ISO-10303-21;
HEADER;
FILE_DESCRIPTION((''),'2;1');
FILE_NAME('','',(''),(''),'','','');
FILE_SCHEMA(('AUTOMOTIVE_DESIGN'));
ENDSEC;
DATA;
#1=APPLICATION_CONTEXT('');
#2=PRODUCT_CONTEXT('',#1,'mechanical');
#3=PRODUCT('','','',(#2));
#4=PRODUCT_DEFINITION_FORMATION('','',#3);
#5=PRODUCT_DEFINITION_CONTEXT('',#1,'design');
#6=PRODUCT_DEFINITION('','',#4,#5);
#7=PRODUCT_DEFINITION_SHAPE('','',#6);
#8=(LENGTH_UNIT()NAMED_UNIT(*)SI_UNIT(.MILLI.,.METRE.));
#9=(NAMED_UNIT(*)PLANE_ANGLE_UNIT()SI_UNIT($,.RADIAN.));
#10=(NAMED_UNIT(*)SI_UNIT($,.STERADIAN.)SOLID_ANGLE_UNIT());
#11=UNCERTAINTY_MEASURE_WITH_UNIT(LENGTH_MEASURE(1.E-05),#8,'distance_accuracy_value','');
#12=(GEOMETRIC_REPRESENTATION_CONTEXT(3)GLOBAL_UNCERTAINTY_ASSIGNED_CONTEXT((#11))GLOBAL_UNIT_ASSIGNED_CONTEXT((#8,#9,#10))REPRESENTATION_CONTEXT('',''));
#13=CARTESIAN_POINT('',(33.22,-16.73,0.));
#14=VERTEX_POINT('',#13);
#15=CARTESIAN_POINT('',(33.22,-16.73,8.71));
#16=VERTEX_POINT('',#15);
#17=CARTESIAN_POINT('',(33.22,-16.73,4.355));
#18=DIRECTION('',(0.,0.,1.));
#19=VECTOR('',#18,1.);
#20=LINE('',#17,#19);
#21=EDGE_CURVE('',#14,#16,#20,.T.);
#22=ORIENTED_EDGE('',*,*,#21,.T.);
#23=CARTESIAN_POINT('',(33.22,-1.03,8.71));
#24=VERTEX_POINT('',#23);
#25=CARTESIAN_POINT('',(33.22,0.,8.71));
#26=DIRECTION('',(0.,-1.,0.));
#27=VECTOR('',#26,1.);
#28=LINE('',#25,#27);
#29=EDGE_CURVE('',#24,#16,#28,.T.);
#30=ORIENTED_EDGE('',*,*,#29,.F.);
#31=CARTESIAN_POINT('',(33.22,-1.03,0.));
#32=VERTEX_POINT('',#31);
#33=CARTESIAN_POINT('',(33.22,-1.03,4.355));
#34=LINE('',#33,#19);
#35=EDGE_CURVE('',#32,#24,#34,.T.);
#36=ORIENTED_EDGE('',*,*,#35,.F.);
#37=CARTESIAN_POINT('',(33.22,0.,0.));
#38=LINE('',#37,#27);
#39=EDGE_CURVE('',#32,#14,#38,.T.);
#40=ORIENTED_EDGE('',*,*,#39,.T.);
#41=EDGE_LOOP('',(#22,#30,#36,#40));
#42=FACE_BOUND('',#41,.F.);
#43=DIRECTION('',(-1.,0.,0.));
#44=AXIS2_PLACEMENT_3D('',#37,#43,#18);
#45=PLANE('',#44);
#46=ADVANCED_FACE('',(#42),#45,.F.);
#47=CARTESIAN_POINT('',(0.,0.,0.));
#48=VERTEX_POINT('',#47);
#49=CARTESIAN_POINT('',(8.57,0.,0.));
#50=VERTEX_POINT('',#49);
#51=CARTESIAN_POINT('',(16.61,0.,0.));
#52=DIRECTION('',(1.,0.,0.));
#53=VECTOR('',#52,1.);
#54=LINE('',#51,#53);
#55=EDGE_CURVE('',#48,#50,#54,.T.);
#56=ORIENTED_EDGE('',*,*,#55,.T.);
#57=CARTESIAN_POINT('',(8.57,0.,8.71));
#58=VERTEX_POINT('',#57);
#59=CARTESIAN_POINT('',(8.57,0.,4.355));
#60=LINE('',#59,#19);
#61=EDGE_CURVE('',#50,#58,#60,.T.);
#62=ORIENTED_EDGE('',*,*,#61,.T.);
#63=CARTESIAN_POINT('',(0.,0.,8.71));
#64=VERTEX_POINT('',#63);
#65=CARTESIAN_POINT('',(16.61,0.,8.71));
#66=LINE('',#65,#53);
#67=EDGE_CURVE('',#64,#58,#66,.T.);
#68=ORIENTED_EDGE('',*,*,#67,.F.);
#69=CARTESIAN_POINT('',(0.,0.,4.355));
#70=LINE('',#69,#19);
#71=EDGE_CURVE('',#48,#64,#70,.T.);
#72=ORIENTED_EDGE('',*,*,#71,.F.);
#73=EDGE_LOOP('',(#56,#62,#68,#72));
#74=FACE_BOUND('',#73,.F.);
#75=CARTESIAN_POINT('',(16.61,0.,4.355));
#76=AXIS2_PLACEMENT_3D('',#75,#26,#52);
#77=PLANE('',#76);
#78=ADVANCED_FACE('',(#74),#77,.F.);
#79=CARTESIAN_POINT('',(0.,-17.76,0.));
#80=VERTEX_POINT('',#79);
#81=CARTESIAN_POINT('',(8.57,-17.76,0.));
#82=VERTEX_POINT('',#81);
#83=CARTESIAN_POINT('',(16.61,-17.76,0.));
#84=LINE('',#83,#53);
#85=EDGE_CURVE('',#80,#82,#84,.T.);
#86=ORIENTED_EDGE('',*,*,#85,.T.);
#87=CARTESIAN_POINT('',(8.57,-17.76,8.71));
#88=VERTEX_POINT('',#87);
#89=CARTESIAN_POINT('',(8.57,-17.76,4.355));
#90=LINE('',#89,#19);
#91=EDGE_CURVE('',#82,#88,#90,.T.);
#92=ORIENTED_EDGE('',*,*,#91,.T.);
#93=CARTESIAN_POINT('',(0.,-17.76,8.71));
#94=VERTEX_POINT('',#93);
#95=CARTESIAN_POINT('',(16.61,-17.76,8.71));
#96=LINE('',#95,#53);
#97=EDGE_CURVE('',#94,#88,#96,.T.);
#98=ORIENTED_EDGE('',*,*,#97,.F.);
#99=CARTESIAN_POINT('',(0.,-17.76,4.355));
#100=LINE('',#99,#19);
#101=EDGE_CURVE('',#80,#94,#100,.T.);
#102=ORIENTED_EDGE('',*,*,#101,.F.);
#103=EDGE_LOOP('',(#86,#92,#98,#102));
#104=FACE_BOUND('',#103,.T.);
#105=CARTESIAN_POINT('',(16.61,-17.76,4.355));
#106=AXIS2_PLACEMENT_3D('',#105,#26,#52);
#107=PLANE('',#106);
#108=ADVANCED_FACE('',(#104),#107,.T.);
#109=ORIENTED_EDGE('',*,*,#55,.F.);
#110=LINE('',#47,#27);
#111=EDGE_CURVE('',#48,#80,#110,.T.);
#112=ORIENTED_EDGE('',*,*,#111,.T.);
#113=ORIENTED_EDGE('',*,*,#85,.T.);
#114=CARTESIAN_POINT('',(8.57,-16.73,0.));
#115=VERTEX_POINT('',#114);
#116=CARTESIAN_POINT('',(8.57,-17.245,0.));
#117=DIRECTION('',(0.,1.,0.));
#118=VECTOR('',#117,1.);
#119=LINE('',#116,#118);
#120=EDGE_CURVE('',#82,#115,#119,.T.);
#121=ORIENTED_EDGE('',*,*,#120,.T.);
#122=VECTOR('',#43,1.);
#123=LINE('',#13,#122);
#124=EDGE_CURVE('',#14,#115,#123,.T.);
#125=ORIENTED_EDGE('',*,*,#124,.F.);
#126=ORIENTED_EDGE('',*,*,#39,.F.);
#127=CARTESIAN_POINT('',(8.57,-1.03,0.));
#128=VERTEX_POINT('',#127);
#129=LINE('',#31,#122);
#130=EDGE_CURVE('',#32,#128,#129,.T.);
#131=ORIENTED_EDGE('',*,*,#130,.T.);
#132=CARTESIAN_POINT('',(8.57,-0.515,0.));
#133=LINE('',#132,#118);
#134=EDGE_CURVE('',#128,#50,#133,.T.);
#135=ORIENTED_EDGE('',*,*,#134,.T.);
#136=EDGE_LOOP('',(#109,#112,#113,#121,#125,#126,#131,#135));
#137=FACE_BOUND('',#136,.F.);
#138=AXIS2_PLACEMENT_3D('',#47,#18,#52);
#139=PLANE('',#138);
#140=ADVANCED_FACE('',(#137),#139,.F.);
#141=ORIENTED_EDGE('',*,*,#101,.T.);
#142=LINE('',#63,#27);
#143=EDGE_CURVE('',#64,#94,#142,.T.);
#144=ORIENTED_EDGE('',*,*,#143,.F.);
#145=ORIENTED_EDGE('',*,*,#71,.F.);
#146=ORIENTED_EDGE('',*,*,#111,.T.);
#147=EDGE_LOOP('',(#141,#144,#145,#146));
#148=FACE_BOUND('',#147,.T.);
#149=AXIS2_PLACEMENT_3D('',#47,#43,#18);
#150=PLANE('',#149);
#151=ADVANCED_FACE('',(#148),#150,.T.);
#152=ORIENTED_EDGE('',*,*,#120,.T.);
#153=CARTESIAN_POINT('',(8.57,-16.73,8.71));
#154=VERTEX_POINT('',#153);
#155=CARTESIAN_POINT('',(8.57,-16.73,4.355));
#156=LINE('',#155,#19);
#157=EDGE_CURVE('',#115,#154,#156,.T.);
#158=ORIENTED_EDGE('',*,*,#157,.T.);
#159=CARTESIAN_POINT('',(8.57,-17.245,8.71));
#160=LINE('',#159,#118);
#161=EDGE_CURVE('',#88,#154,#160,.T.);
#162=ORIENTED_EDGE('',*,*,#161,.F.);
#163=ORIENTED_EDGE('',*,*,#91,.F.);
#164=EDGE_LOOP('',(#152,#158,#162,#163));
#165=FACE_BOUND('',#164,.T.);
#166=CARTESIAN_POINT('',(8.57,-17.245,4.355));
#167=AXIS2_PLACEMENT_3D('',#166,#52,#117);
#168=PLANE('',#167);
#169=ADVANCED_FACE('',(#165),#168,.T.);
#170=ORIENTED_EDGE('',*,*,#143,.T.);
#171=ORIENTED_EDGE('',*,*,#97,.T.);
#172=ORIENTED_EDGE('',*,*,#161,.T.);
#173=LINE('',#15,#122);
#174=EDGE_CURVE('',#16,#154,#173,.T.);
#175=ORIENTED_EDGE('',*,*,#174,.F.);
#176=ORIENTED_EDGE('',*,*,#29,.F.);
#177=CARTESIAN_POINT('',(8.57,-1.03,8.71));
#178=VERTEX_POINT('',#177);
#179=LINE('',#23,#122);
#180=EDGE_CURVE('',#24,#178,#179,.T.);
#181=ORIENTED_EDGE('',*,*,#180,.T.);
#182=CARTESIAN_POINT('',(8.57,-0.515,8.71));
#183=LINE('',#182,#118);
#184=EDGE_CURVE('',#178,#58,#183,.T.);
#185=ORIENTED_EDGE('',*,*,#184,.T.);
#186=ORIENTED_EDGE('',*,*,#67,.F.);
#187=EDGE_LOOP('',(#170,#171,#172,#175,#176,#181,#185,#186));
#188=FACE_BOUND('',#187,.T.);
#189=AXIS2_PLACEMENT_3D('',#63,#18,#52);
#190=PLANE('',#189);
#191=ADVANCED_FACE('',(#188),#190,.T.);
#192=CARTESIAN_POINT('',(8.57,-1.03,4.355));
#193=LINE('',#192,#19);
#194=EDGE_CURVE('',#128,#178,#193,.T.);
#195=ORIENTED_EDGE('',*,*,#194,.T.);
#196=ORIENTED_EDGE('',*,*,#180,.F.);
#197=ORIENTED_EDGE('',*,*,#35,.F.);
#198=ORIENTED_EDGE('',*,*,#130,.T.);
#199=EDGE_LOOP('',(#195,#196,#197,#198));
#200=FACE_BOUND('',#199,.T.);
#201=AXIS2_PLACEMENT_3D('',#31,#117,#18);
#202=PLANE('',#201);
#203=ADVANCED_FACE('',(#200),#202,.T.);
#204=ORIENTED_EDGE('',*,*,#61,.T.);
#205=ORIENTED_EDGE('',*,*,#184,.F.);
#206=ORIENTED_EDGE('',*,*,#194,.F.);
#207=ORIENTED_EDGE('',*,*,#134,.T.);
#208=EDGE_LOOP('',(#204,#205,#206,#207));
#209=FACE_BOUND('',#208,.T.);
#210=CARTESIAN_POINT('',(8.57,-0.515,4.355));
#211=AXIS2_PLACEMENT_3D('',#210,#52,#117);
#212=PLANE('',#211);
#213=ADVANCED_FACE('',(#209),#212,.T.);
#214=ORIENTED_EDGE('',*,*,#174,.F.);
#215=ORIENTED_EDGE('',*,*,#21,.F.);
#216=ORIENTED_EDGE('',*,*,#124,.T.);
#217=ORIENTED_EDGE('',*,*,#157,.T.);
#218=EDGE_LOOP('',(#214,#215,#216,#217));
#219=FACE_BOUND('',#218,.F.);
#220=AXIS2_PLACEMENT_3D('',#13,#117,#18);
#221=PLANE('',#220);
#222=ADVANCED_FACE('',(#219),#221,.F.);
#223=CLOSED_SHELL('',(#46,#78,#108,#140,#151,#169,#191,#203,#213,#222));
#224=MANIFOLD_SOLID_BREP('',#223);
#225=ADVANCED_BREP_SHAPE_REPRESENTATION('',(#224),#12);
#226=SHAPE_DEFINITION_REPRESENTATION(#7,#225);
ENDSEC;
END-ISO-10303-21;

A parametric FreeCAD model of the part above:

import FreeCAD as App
import Part
import Sketcher

V = App.Vector


def add_polygon(sketch, points):
    """Adds a closed chain of lines whose ends are joined by coincident constraints."""
    first, n = sketch.GeometryCount, len(points)
    for a, b in zip(points, points[1:] + points[:1]):
        sketch.addGeometry(Part.LineSegment(App.Vector(*a, 0), App.Vector(*b, 0)), False)
    for i in range(n):
        sketch.addConstraint(Sketcher.Constraint("Coincident", first + i, 2, first + (i + 1) % n, 1))

doc = App.newDocument("Part")
body = doc.addObject("PartDesign::Body", "Body")

# Sketch on XZ plane
sketch1 = doc.addObject("Sketcher::SketchObject", "Sketch")
body.addObject(sketch1)
sketch1.AttachmentSupport = (doc.XZ_Plane, [""])
sketch1.MapMode = "FlatFace"
add_polygon(sketch1, [(0, 9), (0, 0), (33, 0), (33, 9)])  # lines 0-3
sketch1.addConstraint([
    Sketcher.Constraint("Vertical", 0),
    Sketcher.Constraint("Horizontal", 1),
    Sketcher.Constraint("Vertical", 2),
    Sketcher.Constraint("Horizontal", 3),
    Sketcher.Constraint("Coincident", 0, 2, -1, 1),
    Sketcher.Constraint("DistanceX", 1, 1, 1, 2, 33.22),
    Sketcher.Constraint("DistanceY", 0, 2, 0, 1, 8.71),
])
pad1 = doc.addObject("PartDesign::Pad", "Pad")
body.addObject(pad1)
pad1.Profile = sketch1
pad1.Length = 17.76

# Sketch on YZ plane
sketch2 = doc.addObject("Sketcher::SketchObject", "Sketch001")
body.addObject(sketch2)
sketch2.AttachmentSupport = (doc.YZ_Plane, [""])
sketch2.MapMode = "FlatFace"
sketch2.AttachmentOffset = App.Placement(V(0, 0, 33.22), App.Rotation())
add_polygon(sketch2, [(-17.8, 8.7), (-17.8, 0), (-16.7, 0), (-16.7, 8.7)])  # lines 0-3
add_polygon(sketch2, [(-1, 8.7), (-1, 0), (0, 0), (0, 8.7)])  # lines 4-7
sketch2.addConstraint([
    Sketcher.Constraint("Vertical", 0),
    Sketcher.Constraint("Horizontal", 1),
    Sketcher.Constraint("Vertical", 2),
    Sketcher.Constraint("Horizontal", 3),
    Sketcher.Constraint("Vertical", 4),
    Sketcher.Constraint("Horizontal", 5),
    Sketcher.Constraint("Vertical", 6),
    Sketcher.Constraint("Horizontal", 7),
    Sketcher.Constraint("Coincident", 5, 2, -1, 1),
    Sketcher.Constraint("PointOnObject", 0, 2, -1),
    Sketcher.Constraint("Horizontal", 3, 2, 6, 2),
    Sketcher.Constraint("Equal", 3, 5),
    Sketcher.Constraint("DistanceX", 1, 1, 1, 2, 1.03),
    Sketcher.Constraint("DistanceY", 0, 2, 0, 1, 8.71),
    Sketcher.Constraint("DistanceX", 1, 2, 4, 2, 15.7),
])
pocket1 = doc.addObject("PartDesign::Pocket", "Pocket")
body.addObject(pocket1)
pocket1.Profile = sketch2
pocket1.Length = 24.65

doc.recompute()
